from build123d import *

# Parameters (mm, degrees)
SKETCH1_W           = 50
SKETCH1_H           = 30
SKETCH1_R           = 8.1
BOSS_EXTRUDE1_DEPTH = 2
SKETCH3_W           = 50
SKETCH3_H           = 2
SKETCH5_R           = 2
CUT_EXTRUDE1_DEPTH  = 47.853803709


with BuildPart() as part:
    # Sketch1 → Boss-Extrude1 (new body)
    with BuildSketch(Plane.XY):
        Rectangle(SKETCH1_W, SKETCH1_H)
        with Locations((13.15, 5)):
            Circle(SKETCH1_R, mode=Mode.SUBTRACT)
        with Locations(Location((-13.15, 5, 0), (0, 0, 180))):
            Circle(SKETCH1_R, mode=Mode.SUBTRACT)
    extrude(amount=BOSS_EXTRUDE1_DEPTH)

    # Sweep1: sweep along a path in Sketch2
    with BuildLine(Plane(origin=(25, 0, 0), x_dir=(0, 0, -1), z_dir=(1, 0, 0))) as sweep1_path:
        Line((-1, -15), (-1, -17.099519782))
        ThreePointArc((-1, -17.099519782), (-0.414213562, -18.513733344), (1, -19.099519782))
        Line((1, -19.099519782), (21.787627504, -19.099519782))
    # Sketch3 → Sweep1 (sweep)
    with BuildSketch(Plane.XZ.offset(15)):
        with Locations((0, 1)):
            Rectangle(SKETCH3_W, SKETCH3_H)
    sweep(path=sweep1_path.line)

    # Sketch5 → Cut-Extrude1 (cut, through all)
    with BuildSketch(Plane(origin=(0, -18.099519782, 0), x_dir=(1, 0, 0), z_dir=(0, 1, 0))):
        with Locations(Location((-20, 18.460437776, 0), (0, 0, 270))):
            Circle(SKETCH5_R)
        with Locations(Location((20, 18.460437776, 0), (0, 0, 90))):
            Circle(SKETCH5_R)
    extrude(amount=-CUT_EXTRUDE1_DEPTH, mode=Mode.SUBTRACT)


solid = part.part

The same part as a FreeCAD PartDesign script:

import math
import FreeCAD as App
import Part
import Sketcher
from FreeCAD import Vector


def add_polygon(sketch, points):
    """Adds a closed chain of lines whose ends are joined by coincident constraints."""
    first, n = sketch.GeometryCount, len(points)
    for a, b in zip(points, points[1:] + points[:1]):
        sketch.addGeometry(Part.LineSegment(App.Vector(*a, 0), App.Vector(*b, 0)), False)
    for i in range(n):
        sketch.addConstraint(Sketcher.Constraint("Coincident", first + i, 2, first + (i + 1) % n, 1))

doc = App.newDocument("Part")
body = doc.addObject("PartDesign::Body", "Body")

sketch1 = body.newObject("Sketcher::SketchObject", "Sketch")
sketch1.AttachmentSupport = (doc.getObject("XY_Plane"), [""])
sketch1.MapMode = "FlatFace"
add_polygon(sketch1, [(-25, 15), (-25, -15), (25, -15), (25, 15)])
sketch1.addGeometry(Part.Circle(Vector(-13, 5, 0), Vector(0, 0, 1), 8), False)
sketch1.addGeometry(Part.Circle(Vector(13, 5, 0), Vector(0, 0, 1), 8), False)
sketch1.addConstraint([
    Sketcher.Constraint("Vertical", 0),
    Sketcher.Constraint("Horizontal", 1),
    Sketcher.Constraint("Vertical", 2),
    Sketcher.Constraint("Horizontal", 3),
    Sketcher.Constraint("Equal", 4, 5),
    Sketcher.Constraint("Symmetric", 0, 2, 2, 2, -1, 1),
    Sketcher.Constraint("Symmetric", 4, 3, 5, 3, -2),
    Sketcher.Constraint("Diameter", 4, 16.2),
    Sketcher.Constraint("DistanceX", 1, 1, 1, 2, 50.0),
    Sketcher.Constraint("DistanceY", 0, 2, 0, 1, 30.0),
    Sketcher.Constraint("DistanceY", -1, 1, 4, 3, 5.0),
    Sketcher.Constraint("DistanceX", 4, 3, 5, 3, 26.3),
])
pad1 = body.newObject("PartDesign::Pad", "Pad")
pad1.Profile = sketch1
pad1.Length = 2

sketch2 = body.newObject("Sketcher::SketchObject", "Sketch001")
sketch2.AttachmentSupport = (doc.getObject("XZ_Plane"), [""])
sketch2.MapMode = "FlatFace"
sketch2.AttachmentOffset = App.Placement(Vector(0, 0, 15), App.Rotation())
add_polygon(sketch2, [(-25, 2), (-25, 0), (25, 0), (25, 2)])
sketch2.addConstraint([
    Sketcher.Constraint("Vertical", 0),
    Sketcher.Constraint("Horizontal", 1),
    Sketcher.Constraint("Vertical", 2),
    Sketcher.Constraint("Horizontal", 3),
    Sketcher.Constraint("Symmetric", 0, 2, 1, 2, -1, 1),
    Sketcher.Constraint("DistanceX", 1, 1, 1, 2, 50.0),
    Sketcher.Constraint("DistanceY", 0, 2, 0, 1, 2.0),
])

sketch3 = body.newObject("Sketcher::SketchObject", "Sketch002")
sketch3.AttachmentSupport = (doc.getObject("YZ_Plane"), [""])
sketch3.MapMode = "FlatFace"
sketch3.AttachmentOffset = App.Placement(Vector(0, 0, 25), App.Rotation())
sketch3.addGeometry([
    Part.LineSegment(Vector(-15, 1, 0), Vector(-17.1, 1, 0)),
    Part.ArcOfCircle(Part.Circle(Vector(-17.1, -1, 0), Vector(0, 0, 1), 2), math.radians(90), math.radians(180)),
    Part.LineSegment(Vector(-19.1, -1, 0), Vector(-19.1, -21.8, 0)),
], False)
sketch3.addConstraint([
    Sketcher.Constraint("Tangent", 0, 2, 1, 1),
    Sketcher.Constraint("Tangent", 1, 2, 2, 1),
    Sketcher.Constraint("Horizontal", 0),
    Sketcher.Constraint("Vertical", 2),
    Sketcher.Constraint("Radius", 1, 2.0),
    Sketcher.Constraint("DistanceY", 1, 3, -1, 1, 1.0),
    Sketcher.Constraint("DistanceX", 0, 1, -1, 1, 15.0),
    Sketcher.Constraint("DistanceX", 0, 2, 0, 1, 2.09952),
    Sketcher.Constraint("DistanceY", 2, 2, 2, 1, 20.787628),
])
doc.recompute()

additivepipe = body.newObject("PartDesign::AdditivePipe", "AdditivePipe")
additivepipe.Profile = sketch2
additivepipe.Spine = (sketch3, ["Edge1", "Edge2", "Edge3"])

sketch4 = body.newObject("Sketcher::SketchObject", "Sketch003")
sketch4.AttachmentSupport = (doc.getObject("XZ_Plane"), [""])
sketch4.MapMode = "FlatFace"
sketch4.AttachmentOffset = App.Placement(Vector(0, 0, 18.09952), App.Rotation())
sketch4.addGeometry([
    Part.Circle(Vector(-20, -18.5, 0), Vector(0, 0, 1), 2),
    Part.Circle(Vector(20, -18.5, 0), Vector(0, 0, 1), 2),
], False)
sketch4.addConstraint([
    Sketcher.Constraint("Equal", 0, 1),
    Sketcher.Constraint("Symmetric", 0, 3, 1, 3, -2),
    Sketcher.Constraint("Diameter", 0, 4.0),
    Sketcher.Constraint("DistanceX", 0, 3, -1, 1, 20.0),
    Sketcher.Constraint("DistanceY", 0, 3, -1, 1, 18.460438),
])
pocket1 = body.newObject("PartDesign::Pocket", "Pocket")
pocket1.Profile = sketch4
pocket1.Type = "ThroughAll"
pocket1.Reversed = True

doc.recompute()
